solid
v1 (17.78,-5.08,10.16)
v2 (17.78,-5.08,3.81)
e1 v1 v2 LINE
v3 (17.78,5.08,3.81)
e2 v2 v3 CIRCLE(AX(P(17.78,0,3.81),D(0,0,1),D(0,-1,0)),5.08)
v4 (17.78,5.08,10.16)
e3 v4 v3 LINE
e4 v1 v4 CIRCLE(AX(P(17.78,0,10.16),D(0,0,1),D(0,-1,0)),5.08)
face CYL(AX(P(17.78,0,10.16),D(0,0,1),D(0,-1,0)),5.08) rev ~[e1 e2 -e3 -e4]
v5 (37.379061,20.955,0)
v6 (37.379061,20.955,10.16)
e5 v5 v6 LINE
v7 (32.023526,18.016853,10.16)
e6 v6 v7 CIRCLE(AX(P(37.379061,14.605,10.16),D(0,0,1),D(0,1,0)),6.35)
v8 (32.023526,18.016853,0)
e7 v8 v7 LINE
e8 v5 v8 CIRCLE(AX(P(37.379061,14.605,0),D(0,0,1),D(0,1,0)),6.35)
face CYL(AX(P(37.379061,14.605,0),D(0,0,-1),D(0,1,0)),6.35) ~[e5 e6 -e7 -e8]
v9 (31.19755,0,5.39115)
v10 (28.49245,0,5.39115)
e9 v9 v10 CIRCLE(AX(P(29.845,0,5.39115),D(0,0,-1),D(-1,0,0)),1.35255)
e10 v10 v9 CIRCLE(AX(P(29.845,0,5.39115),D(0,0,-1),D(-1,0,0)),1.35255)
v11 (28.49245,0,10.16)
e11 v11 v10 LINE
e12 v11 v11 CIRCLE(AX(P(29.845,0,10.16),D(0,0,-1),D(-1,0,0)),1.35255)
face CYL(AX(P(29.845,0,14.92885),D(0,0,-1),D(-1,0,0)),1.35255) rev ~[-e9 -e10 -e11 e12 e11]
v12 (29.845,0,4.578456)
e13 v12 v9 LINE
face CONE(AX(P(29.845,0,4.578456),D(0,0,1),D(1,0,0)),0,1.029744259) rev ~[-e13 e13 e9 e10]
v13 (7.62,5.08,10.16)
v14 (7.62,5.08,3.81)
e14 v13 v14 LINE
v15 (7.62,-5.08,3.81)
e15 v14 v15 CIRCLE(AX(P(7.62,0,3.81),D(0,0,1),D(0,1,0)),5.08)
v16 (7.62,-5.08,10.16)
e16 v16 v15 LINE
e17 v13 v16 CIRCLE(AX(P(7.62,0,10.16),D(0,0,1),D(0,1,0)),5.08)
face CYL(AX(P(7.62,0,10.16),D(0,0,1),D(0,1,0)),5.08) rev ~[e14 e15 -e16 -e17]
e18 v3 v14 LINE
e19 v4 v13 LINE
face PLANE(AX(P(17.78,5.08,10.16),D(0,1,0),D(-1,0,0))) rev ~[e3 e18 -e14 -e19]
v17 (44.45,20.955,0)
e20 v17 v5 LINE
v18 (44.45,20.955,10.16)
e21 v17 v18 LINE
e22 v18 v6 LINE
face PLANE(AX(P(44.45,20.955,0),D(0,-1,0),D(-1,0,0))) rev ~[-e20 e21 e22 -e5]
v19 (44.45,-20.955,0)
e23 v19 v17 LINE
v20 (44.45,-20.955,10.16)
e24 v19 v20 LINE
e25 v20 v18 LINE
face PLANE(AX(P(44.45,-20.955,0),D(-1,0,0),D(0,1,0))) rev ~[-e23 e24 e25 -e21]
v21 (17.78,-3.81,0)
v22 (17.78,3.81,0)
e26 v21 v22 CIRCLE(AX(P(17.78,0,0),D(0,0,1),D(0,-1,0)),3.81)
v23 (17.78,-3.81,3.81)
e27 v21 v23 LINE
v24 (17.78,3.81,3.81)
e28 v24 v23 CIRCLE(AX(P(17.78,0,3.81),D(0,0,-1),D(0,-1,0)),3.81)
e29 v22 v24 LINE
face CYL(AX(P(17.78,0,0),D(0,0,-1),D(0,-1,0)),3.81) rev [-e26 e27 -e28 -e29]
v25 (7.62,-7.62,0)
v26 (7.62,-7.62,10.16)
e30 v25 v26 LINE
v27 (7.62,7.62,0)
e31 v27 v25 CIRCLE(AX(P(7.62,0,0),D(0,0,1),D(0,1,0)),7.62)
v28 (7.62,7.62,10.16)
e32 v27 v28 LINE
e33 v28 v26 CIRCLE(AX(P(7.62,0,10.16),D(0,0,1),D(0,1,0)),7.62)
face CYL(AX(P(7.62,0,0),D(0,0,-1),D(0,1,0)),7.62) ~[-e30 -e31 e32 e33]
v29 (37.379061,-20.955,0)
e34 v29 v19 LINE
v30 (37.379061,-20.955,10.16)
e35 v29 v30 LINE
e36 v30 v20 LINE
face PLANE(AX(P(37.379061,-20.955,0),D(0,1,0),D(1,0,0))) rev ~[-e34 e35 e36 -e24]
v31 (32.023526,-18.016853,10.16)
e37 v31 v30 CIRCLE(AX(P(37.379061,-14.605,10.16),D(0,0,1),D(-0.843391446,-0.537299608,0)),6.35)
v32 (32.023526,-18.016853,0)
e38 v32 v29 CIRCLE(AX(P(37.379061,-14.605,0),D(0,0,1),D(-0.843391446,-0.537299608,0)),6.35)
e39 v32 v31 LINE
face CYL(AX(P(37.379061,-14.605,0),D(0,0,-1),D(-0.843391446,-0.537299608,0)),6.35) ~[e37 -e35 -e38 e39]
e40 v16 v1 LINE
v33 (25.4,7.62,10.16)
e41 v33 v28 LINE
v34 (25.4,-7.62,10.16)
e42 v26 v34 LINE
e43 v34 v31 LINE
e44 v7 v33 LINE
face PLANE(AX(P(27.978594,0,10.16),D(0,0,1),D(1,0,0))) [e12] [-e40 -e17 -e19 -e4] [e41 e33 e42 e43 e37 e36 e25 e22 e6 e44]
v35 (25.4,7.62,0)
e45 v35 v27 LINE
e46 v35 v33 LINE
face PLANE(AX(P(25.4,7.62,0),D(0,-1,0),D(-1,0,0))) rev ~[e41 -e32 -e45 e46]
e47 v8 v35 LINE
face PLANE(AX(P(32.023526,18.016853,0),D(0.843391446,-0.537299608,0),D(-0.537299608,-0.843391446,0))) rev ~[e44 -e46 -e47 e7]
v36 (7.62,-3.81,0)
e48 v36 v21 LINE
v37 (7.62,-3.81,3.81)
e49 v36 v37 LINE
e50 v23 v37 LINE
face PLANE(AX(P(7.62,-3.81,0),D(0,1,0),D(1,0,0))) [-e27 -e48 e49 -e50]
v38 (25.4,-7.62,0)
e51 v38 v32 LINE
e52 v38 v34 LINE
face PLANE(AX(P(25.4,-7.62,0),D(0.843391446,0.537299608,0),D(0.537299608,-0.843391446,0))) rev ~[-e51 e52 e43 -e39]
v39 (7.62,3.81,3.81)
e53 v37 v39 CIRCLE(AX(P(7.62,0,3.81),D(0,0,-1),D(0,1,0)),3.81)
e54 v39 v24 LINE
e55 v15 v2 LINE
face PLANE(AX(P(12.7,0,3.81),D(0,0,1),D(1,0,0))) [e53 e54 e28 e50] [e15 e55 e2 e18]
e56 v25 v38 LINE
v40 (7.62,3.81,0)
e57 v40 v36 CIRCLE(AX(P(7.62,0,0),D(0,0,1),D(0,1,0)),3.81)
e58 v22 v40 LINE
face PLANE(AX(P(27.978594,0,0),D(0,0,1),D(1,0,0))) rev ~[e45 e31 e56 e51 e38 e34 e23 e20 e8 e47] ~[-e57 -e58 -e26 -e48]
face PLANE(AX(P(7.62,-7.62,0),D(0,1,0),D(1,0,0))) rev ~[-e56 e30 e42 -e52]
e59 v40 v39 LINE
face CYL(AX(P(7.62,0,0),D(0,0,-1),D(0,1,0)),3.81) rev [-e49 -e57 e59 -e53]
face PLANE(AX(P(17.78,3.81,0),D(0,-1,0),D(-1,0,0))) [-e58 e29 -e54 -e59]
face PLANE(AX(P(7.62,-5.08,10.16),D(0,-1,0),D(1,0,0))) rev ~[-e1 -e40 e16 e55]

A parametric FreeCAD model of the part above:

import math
import FreeCAD as App
import Part
import Sketcher

V = App.Vector
Q = App.Units.Quantity

doc = App.newDocument("Part")
body = doc.addObject("PartDesign::Body", "Body")

# Sketch on XY plane
sketch1 = body.newObject("Sketcher::SketchObject", "Sketch")
sketch1.AttachmentSupport = (doc.getObject("XY_Plane"), [""])
sketch1.MapMode = "FlatFace"
sketch1.addGeometry([
    Part.LineSegment(V(25, 8, 0), V(8, 8, 0)),  # 0
    Part.ArcOfCircle(Part.Circle(V(8, 0, 0), V(0, 0, 1), 8), math.radians(90), math.radians(270)),  # 1
    Part.LineSegment(V(8, -8, 0), V(25, -8, 0)),  # 2
    Part.LineSegment(V(25, -8, 0), V(32, -18, 0)),  # 3
    Part.ArcOfCircle(Part.Circle(V(37, -15, 0), V(0, 0, 1), 6), math.radians(-148), math.radians(-90)),  # 4
    Part.LineSegment(V(37, -21, 0), V(44, -21, 0)),  # 5
    Part.LineSegment(V(44, -21, 0), V(44, 21, 0)),  # 6
    Part.LineSegment(V(44, 21, 0), V(37, 21, 0)),  # 7
    Part.ArcOfCircle(Part.Circle(V(37, 15, 0), V(0, 0, 1), 6), math.radians(90), math.radians(148)),  # 8
    Part.LineSegment(V(32, 18, 0), V(25, 8, 0)),  # 9
], False)
sketch1.addConstraint([
    Sketcher.Constraint("Tangent", 0, 2, 1, 1),
    Sketcher.Constraint("Tangent", 1, 2, 2, 1),
    Sketcher.Constraint("Coincident", 2, 2, 3, 1),
    Sketcher.Constraint("Tangent", 3, 2, 4, 1),
    Sketcher.Constraint("Tangent", 4, 2, 5, 1),
    Sketcher.Constraint("Coincident", 5, 2, 6, 1),
    Sketcher.Constraint("Coincident", 6, 2, 7, 1),
    Sketcher.Constraint("Tangent", 7, 2, 8, 1),
    Sketcher.Constraint("Tangent", 8, 2, 9, 1),
    Sketcher.Constraint("Coincident", 9, 2, 0, 1),
    Sketcher.Constraint("Horizontal", 0),
    Sketcher.Constraint("Horizontal", 2),
    Sketcher.Constraint("Horizontal", 5),
    Sketcher.Constraint("Vertical", 6),
    Sketcher.Constraint("Horizontal", 7),
    Sketcher.Constraint("Equal", 4, 8),
    Sketcher.Constraint("Symmetric", 4, 3, 8, 3, -1),
    Sketcher.Constraint("Symmetric", 2, 2, 9, 2, -1),
    Sketcher.Constraint("Radius", 1, Q("0.3 in")),
    Sketcher.Constraint("Radius", 4, Q("0.25 in")),
    Sketcher.Constraint("DistanceX", 0, 2, 0, 1, Q("0.7 in")),
    Sketcher.Constraint("DistanceX", -1, 1, 2, 2, Q("1 in")),
    Sketcher.Constraint("DistanceY", 6, 1, 6, 2, Q("1.65 in")),
    Sketcher.Constraint("Angle", 3, Q("-57.5 deg")),
    Sketcher.Constraint("DistanceX", -1, 1, 5, 2, Q("1.75 in")),
])
pad1 = body.newObject("PartDesign::Pad", "Pad")
pad1.Profile = sketch1
pad1.Length = Q("0.4 in")

# Sketch on XY plane
sketch2 = body.newObject("Sketcher::SketchObject", "Sketch001")
sketch2.AttachmentSupport = (doc.getObject("XY_Plane"), [""])
sketch2.MapMode = "FlatFace"
sketch2.AttachmentOffset = App.Placement(V(0, 0, 0.4 * 25.4), App.Rotation())
sketch2.addGeometry([
    Part.ArcOfCircle(Part.Circle(V(8, 0, 0), V(0, 0, 1), 5), math.radians(90), math.radians(270)),
    Part.LineSegment(V(8, -5, 0), V(18, -5, 0)),
    Part.ArcOfCircle(Part.Circle(V(18, 0, 0), V(0, 0, 1), 5), math.radians(-90), math.radians(90)),
    Part.LineSegment(V(18, 5, 0), V(8, 5, 0)),
], False)
sketch2.addConstraint([
    Sketcher.Constraint("Tangent", 0, 2, 1, 1),
    Sketcher.Constraint("Tangent", 1, 2, 2, 1),
    Sketcher.Constraint("Tangent", 2, 2, 3, 1),
    Sketcher.Constraint("Tangent", 3, 2, 0, 1),
    Sketcher.Constraint("Horizontal", 1),
    Sketcher.Constraint("Horizontal", 3),
    Sketcher.Constraint("PointOnObject", 0, 3, -1),
    Sketcher.Constraint("Radius", 0, Q("0.2 in")),
    Sketcher.Constraint("DistanceX", 1, 1, 1, 2, Q("0.4 in")),
    Sketcher.Constraint("DistanceX", -1, 1, 0, 3, Q("0.3 in")),
])
pocket1 = body.newObject("PartDesign::Pocket", "Pocket")
pocket1.Profile = sketch2
pocket1.Length = Q("0.25 in")

# Sketch on XY plane
sketch3 = body.newObject("Sketcher::SketchObject", "Sketch002")
sketch3.AttachmentSupport = (doc.getObject("XY_Plane"), [""])
sketch3.MapMode = "FlatFace"
sketch3.addGeometry([
    Part.ArcOfCircle(Part.Circle(V(7.6, 0, 0), V(0, 0, 1), 3.8), math.radians(90), math.radians(270)),
    Part.LineSegment(V(7.6, -3.8, 0), V(17.8, -3.8, 0)),
    Part.ArcOfCircle(Part.Circle(V(17.8, 0, 0), V(0, 0, 1), 3.8), math.radians(-90), math.radians(90)),
    Part.LineSegment(V(17.8, 3.8, 0), V(7.6, 3.8, 0)),
], False)
sketch3.addConstraint([
    Sketcher.Constraint("Tangent", 0, 2, 1, 1),
    Sketcher.Constraint("Tangent", 1, 2, 2, 1),
    Sketcher.Constraint("Tangent", 2, 2, 3, 1),
    Sketcher.Constraint("Tangent", 3, 2, 0, 1),
    Sketcher.Constraint("Horizontal", 1),
    Sketcher.Constraint("Horizontal", 3),
    Sketcher.Constraint("PointOnObject", 0, 3, -1),
    Sketcher.Constraint("Radius", 0, Q("0.15 in")),
    Sketcher.Constraint("DistanceX", 1, 1, 1, 2, Q("0.4 in")),
    Sketcher.Constraint("DistanceX", -1, 1, 0, 3, Q("0.3 in")),
])
pocket2 = body.newObject("PartDesign::Pocket", "Pocket001")
pocket2.Profile = sketch3
pocket2.Type = "ThroughAll"
pocket2.Reversed = True

# Sketch on XY plane
sketch4 = body.newObject("Sketcher::SketchObject", "Sketch003")
sketch4.AttachmentSupport = (doc.getObject("XY_Plane"), [""])
sketch4.MapMode = "FlatFace"
sketch4.AttachmentOffset = App.Placement(V(0, 0, 0.4 * 25.4), App.Rotation())
sketch4.addGeometry(Part.Circle(V(29.8, 0, 0), V(0, 0, 1), 1.4), False)
sketch4.addConstraint([
    Sketcher.Constraint("PointOnObject", 0, 3, -1),
    Sketcher.Constraint("Diameter", 0, Q("0.1065 in")),
    Sketcher.Constraint("DistanceX", -1, 1, 0, 3, Q("1.175 in")),
])
doc.recompute()
hole = body.newObject("PartDesign::Hole", "Hole")
hole.Profile = sketch4
hole.ThreadType = "None"
hole.Diameter = Q("0.1065 in")
hole.DepthType = "Dimension"
hole.Depth = 4.76885
hole.DrillPoint = "Angled"
hole.DrillPointAngle = 118

doc.recompute()
